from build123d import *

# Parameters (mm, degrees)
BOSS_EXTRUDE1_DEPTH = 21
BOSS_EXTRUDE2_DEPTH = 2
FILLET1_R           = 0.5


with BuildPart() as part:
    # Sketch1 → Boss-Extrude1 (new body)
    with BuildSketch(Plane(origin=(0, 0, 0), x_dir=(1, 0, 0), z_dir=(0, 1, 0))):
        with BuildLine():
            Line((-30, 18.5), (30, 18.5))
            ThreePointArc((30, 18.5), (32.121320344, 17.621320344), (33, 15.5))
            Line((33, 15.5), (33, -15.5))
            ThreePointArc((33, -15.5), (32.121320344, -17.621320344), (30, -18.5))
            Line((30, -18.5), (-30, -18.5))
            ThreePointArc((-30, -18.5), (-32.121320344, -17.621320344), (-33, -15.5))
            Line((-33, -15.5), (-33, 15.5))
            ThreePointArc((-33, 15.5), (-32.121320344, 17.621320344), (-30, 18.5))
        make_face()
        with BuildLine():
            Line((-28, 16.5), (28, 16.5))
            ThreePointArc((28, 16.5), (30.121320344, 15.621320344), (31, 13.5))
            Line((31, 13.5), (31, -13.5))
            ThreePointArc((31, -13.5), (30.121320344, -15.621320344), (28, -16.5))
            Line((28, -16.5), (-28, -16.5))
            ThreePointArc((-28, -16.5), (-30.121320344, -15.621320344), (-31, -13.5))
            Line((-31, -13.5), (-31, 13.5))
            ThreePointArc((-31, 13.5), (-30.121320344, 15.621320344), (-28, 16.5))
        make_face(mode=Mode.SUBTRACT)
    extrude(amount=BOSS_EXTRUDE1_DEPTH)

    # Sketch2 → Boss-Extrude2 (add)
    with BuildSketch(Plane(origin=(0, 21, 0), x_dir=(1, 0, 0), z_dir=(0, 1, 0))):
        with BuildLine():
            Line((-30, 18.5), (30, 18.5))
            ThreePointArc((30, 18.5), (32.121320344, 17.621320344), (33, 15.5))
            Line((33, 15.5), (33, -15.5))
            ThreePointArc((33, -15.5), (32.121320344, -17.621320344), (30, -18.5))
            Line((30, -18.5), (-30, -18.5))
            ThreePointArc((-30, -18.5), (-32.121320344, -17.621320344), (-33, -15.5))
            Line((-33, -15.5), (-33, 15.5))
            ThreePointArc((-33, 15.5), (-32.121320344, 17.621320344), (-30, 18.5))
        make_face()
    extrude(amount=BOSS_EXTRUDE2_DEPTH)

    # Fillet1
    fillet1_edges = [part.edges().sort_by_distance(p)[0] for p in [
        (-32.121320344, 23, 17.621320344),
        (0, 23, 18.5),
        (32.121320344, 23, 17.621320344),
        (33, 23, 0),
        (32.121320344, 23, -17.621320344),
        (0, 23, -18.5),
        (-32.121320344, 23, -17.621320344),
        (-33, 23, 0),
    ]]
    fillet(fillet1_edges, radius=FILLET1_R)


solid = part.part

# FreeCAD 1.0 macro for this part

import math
import FreeCAD as App
import Part
import Sketcher
from FreeCAD import Vector


def edges_at(feature, points):
    """Names of the edges that pass closest to the given points."""
    edges = feature.Shape.Edges
    near = lambda p: min(range(len(edges)), key=lambda i: edges[i].distToShape(Part.Vertex(*p))[0])
    return sorted({f"Edge{near(p) + 1}" for p in points})

doc = App.newDocument("Part")
params = doc.addObject("Spreadsheet::Sheet", "Params")
for row, (alias, value) in enumerate([
    ("sketch1_radius", "3 mm"),
    ("sketch1_width", "60 mm"),
    ("sketch1_width2", "56 mm"),
    ("sketch1_height", "31 mm"),
    ("sketch1_height2", "27 mm"),
    ("pad1_length", "21 mm"),
    ("sketch2_radius", "3 mm"),
    ("sketch2_width", "60 mm"),
    ("sketch2_height", "31 mm"),
    ("pad2_length", "2 mm"),
    ("fillet_radius", "0.5 mm"),
], start=1):
    params.set(f"A{row}", alias)
    params.set(f"B{row}", "=" + value)
    params.setAlias(f"B{row}", alias)

body = doc.addObject("PartDesign::Body", "Body")

sketch1 = doc.addObject("Sketcher::SketchObject", "Sketch")
body.addObject(sketch1)
sketch1.AttachmentSupport = (doc.XZ_Plane, [""])
sketch1.MapMode = "FlatFace"
sketch1.addGeometry([
    Part.LineSegment(Vector(30, -18.5, 0), Vector(-30, -18.5, 0)),
    Part.ArcOfCircle(Part.Circle(Vector(-30, -15.5, 0), Vector(0, 0, 1), 3), math.radians(180), math.radians(270)),
    Part.LineSegment(Vector(-33, -15.5, 0), Vector(-33, 15.5, 0)),
    Part.ArcOfCircle(Part.Circle(Vector(-30, 15.5, 0), Vector(0, 0, 1), 3), math.radians(90), math.radians(180)),
    Part.LineSegment(Vector(-30, 18.5, 0), Vector(30, 18.5, 0)),
    Part.ArcOfCircle(Part.Circle(Vector(30, 15.5, 0), Vector(0, 0, 1), 3), math.radians(0), math.radians(90)),
    Part.LineSegment(Vector(33, 15.5, 0), Vector(33, -15.5, 0)),
    Part.ArcOfCircle(Part.Circle(Vector(30, -15.5, 0), Vector(0, 0, 1), 3), math.radians(-90), math.radians(0)),
    Part.LineSegment(Vector(-28, -16.5, 0), Vector(28, -16.5, 0)),
    Part.ArcOfCircle(Part.Circle(Vector(28, -13.5, 0), Vector(0, 0, 1), 3), math.radians(-90), math.radians(0)),
    Part.LineSegment(Vector(31, -13.5, 0), Vector(31, 13.5, 0)),
    Part.ArcOfCircle(Part.Circle(Vector(28, 13.5, 0), Vector(0, 0, 1), 3), math.radians(0), math.radians(90)),
    Part.LineSegment(Vector(28, 16.5, 0), Vector(-28, 16.5, 0)),
    Part.ArcOfCircle(Part.Circle(Vector(-28, 13.5, 0), Vector(0, 0, 1), 3), math.radians(90), math.radians(180)),
    Part.LineSegment(Vector(-31, 13.5, 0), Vector(-31, -13.5, 0)),
    Part.ArcOfCircle(Part.Circle(Vector(-28, -13.5, 0), Vector(0, 0, 1), 3), math.radians(180), math.radians(270)),
], False)
sketch1.addConstraint([
    Sketcher.Constraint("Tangent", 0, 2, 1, 2),
    Sketcher.Constraint("Tangent", 1, 1, 2, 1),
    Sketcher.Constraint("Tangent", 2, 2, 3, 2),
    Sketcher.Constraint("Tangent", 3, 1, 4, 1),
    Sketcher.Constraint("Tangent", 4, 2, 5, 2),
    Sketcher.Constraint("Tangent", 5, 1, 6, 1),
    Sketcher.Constraint("Tangent", 6, 2, 7, 2),
    Sketcher.Constraint("Tangent", 7, 1, 0, 1),
    Sketcher.Constraint("Tangent", 8, 2, 9, 1),
    Sketcher.Constraint("Tangent", 9, 2, 10, 1),
    Sketcher.Constraint("Tangent", 10, 2, 11, 1),
    Sketcher.Constraint("Tangent", 11, 2, 12, 1),
    Sketcher.Constraint("Tangent", 12, 2, 13, 1),
    Sketcher.Constraint("Tangent", 13, 2, 14, 1),
    Sketcher.Constraint("Tangent", 14, 2, 15, 1),
    Sketcher.Constraint("Tangent", 15, 2, 8, 1),
    Sketcher.Constraint("Horizontal", 0),
    Sketcher.Constraint("Vertical", 2),
    Sketcher.Constraint("Horizontal", 4),
    Sketcher.Constraint("Vertical", 6),
    Sketcher.Constraint("Horizontal", 8),
    Sketcher.Constraint("Vertical", 10),
    Sketcher.Constraint("Horizontal", 12),
    Sketcher.Constraint("Vertical", 14),
    Sketcher.Constraint("Equal", 1, 3),
    Sketcher.Constraint("Equal", 3, 5),
    Sketcher.Constraint("Equal", 5, 7),
    Sketcher.Constraint("Equal", 7, 9),
    Sketcher.Constraint("Equal", 9, 11),
    Sketcher.Constraint("Equal", 11, 13),
    Sketcher.Constraint("Equal", 13, 15),
    Sketcher.Constraint("Symmetric", 1, 3, 5, 3, -1, 1),
    Sketcher.Constraint("Symmetric", 9, 3, 13, 3, -1, 1),
    Sketcher.Constraint("Radius", 1, 3.0),
    Sketcher.Constraint("DistanceX", 0, 2, 0, 1, 60.0),
    Sketcher.Constraint("DistanceX", 8, 1, 8, 2, 56.0),
    Sketcher.Constraint("DistanceY", 2, 1, 2, 2, 31.0),
    Sketcher.Constraint("DistanceY", 10, 1, 10, 2, 27.0),
])
sketch1.setExpression("Constraints[33]", "Params.sketch1_radius")
sketch1.setExpression("Constraints[34]", "Params.sketch1_width")
sketch1.setExpression("Constraints[35]", "Params.sketch1_width2")
sketch1.setExpression("Constraints[36]", "Params.sketch1_height")
sketch1.setExpression("Constraints[37]", "Params.sketch1_height2")
pad1 = doc.addObject("PartDesign::Pad", "Pad")
body.addObject(pad1)
pad1.Profile = sketch1
pad1.setExpression("Length", "Params.pad1_length")
pad1.Reversed = True

sketch2 = doc.addObject("Sketcher::SketchObject", "Sketch001")
body.addObject(sketch2)
sketch2.AttachmentSupport = (doc.XZ_Plane, [""])
sketch2.MapMode = "FlatFace"
sketch2.AttachmentOffset = App.Placement(Vector(0, 0, -21), App.Rotation())
sketch2.addGeometry([
    Part.LineSegment(Vector(30, -18.5, 0), Vector(-30, -18.5, 0)),
    Part.ArcOfCircle(Part.Circle(Vector(-30, -15.5, 0), Vector(0, 0, 1), 3), math.radians(180), math.radians(270)),
    Part.LineSegment(Vector(-33, -15.5, 0), Vector(-33, 15.5, 0)),
    Part.ArcOfCircle(Part.Circle(Vector(-30, 15.5, 0), Vector(0, 0, 1), 3), math.radians(90), math.radians(180)),
    Part.LineSegment(Vector(-30, 18.5, 0), Vector(30, 18.5, 0)),
    Part.ArcOfCircle(Part.Circle(Vector(30, 15.5, 0), Vector(0, 0, 1), 3), math.radians(0), math.radians(90)),
    Part.LineSegment(Vector(33, 15.5, 0), Vector(33, -15.5, 0)),
    Part.ArcOfCircle(Part.Circle(Vector(30, -15.5, 0), Vector(0, 0, 1), 3), math.radians(-90), math.radians(0)),
], False)
sketch2.addConstraint([
    Sketcher.Constraint("Tangent", 0, 2, 1, 2),
    Sketcher.Constraint("Tangent", 1, 1, 2, 1),
    Sketcher.Constraint("Tangent", 2, 2, 3, 2),
    Sketcher.Constraint("Tangent", 3, 1, 4, 1),
    Sketcher.Constraint("Tangent", 4, 2, 5, 2),
    Sketcher.Constraint("Tangent", 5, 1, 6, 1),
    Sketcher.Constraint("Tangent", 6, 2, 7, 2),
    Sketcher.Constraint("Tangent", 7, 1, 0, 1),
    Sketcher.Constraint("Horizontal", 0),
    Sketcher.Constraint("Vertical", 2),
    Sketcher.Constraint("Horizontal", 4),
    Sketcher.Constraint("Vertical", 6),
    Sketcher.Constraint("Equal", 1, 3),
    Sketcher.Constraint("Equal", 3, 5),
    Sketcher.Constraint("Equal", 5, 7),
    Sketcher.Constraint("Symmetric", 1, 3, 5, 3, -1, 1),
    Sketcher.Constraint("Radius", 1, 3.0),
    Sketcher.Constraint("DistanceX", 0, 2, 0, 1, 60.0),
    Sketcher.Constraint("DistanceY", 2, 1, 2, 2, 31.0),
])
sketch2.setExpression("Constraints[16]", "Params.sketch2_radius")
sketch2.setExpression("Constraints[17]", "Params.sketch2_width")
sketch2.setExpression("Constraints[18]", "Params.sketch2_height")
pad2 = doc.addObject("PartDesign::Pad", "Pad001")
body.addObject(pad2)
pad2.Profile = sketch2
pad2.setExpression("Length", "Params.pad2_length")
pad2.Reversed = True
doc.recompute()

fillet = doc.addObject("PartDesign::Fillet", "Fillet")
body.addObject(fillet)
fillet.Base = (pad2, edges_at(pad2, [
    (-32.121, 23, 17.621),
    (0, 23, 18.5),
    (32.121, 23, 17.621),
    (33, 23, 0),
    (32.121, 23, -17.621),
    (0, 23, -18.5),
    (-32.121, 23, -17.621),
    (-33, 23, 0),
]))
fillet.setExpression("Radius", "Params.fillet_radius")

doc.recompute()
